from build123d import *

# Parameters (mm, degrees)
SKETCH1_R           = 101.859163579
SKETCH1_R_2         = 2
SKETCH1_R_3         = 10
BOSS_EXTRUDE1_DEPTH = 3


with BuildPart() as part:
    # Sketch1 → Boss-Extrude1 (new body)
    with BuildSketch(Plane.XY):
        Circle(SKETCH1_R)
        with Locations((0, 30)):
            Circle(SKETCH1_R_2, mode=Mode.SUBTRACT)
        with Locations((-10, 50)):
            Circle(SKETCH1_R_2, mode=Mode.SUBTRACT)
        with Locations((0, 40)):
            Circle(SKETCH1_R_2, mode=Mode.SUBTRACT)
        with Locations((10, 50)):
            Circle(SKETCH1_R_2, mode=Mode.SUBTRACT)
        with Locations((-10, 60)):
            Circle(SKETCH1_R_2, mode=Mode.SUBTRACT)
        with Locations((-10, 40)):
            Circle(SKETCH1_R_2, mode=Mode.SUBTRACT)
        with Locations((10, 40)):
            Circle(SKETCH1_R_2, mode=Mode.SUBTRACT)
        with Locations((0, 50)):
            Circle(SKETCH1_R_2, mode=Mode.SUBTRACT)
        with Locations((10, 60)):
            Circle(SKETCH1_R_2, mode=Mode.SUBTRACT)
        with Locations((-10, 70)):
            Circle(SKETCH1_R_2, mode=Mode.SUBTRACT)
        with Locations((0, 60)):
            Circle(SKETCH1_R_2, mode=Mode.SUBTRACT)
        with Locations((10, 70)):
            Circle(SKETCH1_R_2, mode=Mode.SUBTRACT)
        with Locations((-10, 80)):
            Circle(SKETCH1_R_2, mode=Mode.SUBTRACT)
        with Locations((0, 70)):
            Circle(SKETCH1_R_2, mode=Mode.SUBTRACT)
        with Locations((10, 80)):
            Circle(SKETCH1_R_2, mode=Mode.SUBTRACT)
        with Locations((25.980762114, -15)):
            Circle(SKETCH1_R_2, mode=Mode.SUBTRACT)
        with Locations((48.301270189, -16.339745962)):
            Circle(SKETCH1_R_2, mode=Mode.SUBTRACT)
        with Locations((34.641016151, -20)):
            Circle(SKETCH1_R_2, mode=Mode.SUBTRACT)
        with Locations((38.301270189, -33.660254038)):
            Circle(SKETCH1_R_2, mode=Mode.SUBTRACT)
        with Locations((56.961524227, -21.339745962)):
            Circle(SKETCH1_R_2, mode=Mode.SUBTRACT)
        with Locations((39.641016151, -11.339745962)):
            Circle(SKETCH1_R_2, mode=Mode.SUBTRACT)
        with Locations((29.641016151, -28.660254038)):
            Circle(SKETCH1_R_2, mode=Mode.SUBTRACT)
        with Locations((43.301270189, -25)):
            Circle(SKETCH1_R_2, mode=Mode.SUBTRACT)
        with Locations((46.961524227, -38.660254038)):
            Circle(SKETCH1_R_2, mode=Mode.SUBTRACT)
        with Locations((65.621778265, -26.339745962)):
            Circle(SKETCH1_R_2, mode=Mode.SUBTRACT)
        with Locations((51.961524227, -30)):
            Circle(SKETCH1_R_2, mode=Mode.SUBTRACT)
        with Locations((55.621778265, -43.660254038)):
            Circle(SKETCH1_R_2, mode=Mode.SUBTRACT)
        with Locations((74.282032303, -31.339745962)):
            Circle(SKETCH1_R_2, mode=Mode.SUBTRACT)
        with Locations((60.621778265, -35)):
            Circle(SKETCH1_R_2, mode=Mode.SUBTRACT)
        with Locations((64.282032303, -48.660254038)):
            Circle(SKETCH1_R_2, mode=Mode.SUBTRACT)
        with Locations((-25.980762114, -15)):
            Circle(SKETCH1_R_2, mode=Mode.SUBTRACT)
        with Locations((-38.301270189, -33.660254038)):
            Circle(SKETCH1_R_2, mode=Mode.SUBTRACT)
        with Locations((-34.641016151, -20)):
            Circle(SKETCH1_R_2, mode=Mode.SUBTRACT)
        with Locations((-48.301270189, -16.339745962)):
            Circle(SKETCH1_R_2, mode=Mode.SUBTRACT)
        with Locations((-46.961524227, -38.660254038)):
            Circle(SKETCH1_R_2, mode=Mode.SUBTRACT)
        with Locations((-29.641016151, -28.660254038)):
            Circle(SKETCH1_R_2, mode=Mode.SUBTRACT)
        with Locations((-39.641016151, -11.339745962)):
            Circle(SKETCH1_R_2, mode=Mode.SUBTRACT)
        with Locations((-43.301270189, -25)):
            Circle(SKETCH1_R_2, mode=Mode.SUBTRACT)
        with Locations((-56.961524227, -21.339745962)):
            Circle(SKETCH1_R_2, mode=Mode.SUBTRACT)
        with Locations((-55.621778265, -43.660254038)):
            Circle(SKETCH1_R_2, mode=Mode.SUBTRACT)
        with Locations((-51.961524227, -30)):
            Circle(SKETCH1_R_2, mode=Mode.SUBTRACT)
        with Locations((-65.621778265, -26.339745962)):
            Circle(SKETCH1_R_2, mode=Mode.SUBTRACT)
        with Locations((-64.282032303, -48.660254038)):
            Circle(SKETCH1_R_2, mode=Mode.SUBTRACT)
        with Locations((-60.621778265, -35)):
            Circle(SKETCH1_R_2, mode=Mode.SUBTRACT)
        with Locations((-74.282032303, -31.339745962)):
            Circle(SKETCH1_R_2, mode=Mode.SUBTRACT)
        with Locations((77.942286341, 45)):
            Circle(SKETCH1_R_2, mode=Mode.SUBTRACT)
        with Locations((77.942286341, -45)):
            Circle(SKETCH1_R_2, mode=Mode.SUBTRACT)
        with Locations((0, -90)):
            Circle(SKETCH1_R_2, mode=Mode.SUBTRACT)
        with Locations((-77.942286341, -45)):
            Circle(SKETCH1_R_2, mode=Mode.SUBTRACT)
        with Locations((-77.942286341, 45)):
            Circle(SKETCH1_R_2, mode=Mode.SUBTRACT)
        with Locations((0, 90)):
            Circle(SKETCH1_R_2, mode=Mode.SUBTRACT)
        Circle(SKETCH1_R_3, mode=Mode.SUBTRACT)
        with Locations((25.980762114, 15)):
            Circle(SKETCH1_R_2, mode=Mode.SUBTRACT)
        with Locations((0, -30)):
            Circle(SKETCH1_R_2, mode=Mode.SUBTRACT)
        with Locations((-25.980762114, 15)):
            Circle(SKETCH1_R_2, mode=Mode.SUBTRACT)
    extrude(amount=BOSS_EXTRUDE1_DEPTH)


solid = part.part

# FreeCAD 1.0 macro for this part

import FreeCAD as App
import Part
import Sketcher
from FreeCAD import Vector

doc = App.newDocument("Part")
params = doc.addObject("Spreadsheet::Sheet", "Params")
for row, (alias, value) in enumerate([
    ("sketch1_diameter", "4 mm"),
    ("sketch1_diameter2", "20 mm"),
    ("pad1_length", "3 mm"),
], start=1):
    params.set(f"A{row}", alias)
    params.set(f"B{row}", "=" + value)
    params.setAlias(f"B{row}", alias)

body = doc.addObject("PartDesign::Body", "Body")

sketch1 = body.newObject("Sketcher::SketchObject", "Sketch")
sketch1.AttachmentSupport = (doc.getObject("XY_Plane"), [""])
sketch1.MapMode = "FlatFace"
sketch1.addGeometry([
    Part.Circle(Vector(0, 0, 0), Vector(0, 0, 1), 101.9),
    Part.Circle(Vector(-64.3, -48.7, 0), Vector(0, 0, 1), 2),
    Part.Circle(Vector(-77.9, -45, 0), Vector(0, 0, 1), 2),
    Part.Circle(Vector(-60.6, -35, 0), Vector(0, 0, 1), 2),
    Part.Circle(Vector(-74.3, -31.3, 0), Vector(0, 0, 1), 2),
    Part.Circle(Vector(-65.6, -26.3, 0), Vector(0, 0, 1), 2),
    Part.Circle(Vector(-55.6, -43.7, 0), Vector(0, 0, 1), 2),
    Part.Circle(Vector(-47, -38.7, 0), Vector(0, 0, 1), 2),
    Part.Circle(Vector(-52, -30, 0), Vector(0, 0, 1), 2),
    Part.Circle(Vector(-43.3, -25, 0), Vector(0, 0, 1), 2),
    Part.Circle(Vector(-57, -21.3, 0), Vector(0, 0, 1), 2),
    Part.Circle(Vector(-48.3, -16.3, 0), Vector(0, 0, 1), 2),
    Part.Circle(Vector(-38.3, -33.7, 0), Vector(0, 0, 1), 2),
    Part.Circle(Vector(-29.6, -28.7, 0), Vector(0, 0, 1), 2),
    Part.Circle(Vector(-34.6, -20, 0), Vector(0, 0, 1), 2),
    Part.Circle(Vector(-26, -15, 0), Vector(0, 0, 1), 2),
    Part.Circle(Vector(-39.6, -11.3, 0), Vector(0, 0, 1), 2),
    Part.Circle(Vector(0, -90, 0), Vector(0, 0, 1), 2),
    Part.Circle(Vector(64.3, -48.7, 0), Vector(0, 0, 1), 2),
    Part.Circle(Vector(0, -30, 0), Vector(0, 0, 1), 2),
    Part.Circle(Vector(29.6, -28.7, 0), Vector(0, 0, 1), 2),
    Part.Circle(Vector(38.3, -33.7, 0), Vector(0, 0, 1), 2),
    Part.Circle(Vector(26, -15, 0), Vector(0, 0, 1), 2),
    Part.Circle(Vector(34.6, -20, 0), Vector(0, 0, 1), 2),
    Part.Circle(Vector(39.6, -11.3, 0), Vector(0, 0, 1), 2),
    Part.Circle(Vector(47, -38.7, 0), Vector(0, 0, 1), 2),
    Part.Circle(Vector(55.6, -43.7, 0), Vector(0, 0, 1), 2),
    Part.Circle(Vector(43.3, -25, 0), Vector(0, 0, 1), 2),
    Part.Circle(Vector(52, -30, 0), Vector(0, 0, 1), 2),
    Part.Circle(Vector(60.6, -35, 0), Vector(0, 0, 1), 2),
    Part.Circle(Vector(77.9, -45, 0), Vector(0, 0, 1), 2),
    Part.Circle(Vector(65.6, -26.3, 0), Vector(0, 0, 1), 2),
    Part.Circle(Vector(74.3, -31.3, 0), Vector(0, 0, 1), 2),
    Part.Circle(Vector(48.3, -16.3, 0), Vector(0, 0, 1), 2),
    Part.Circle(Vector(57, -21.3, 0), Vector(0, 0, 1), 2),
    Part.Circle(Vector(-77.9, 45, 0), Vector(0, 0, 1), 2),
    Part.Circle(Vector(-26, 15, 0), Vector(0, 0, 1), 2),
    Part.Circle(Vector(-10, 40, 0), Vector(0, 0, 1), 2),
    Part.Circle(Vector(-10, 50, 0), Vector(0, 0, 1), 2),
    Part.Circle(Vector(-10, 60, 0), Vector(0, 0, 1), 2),
    Part.Circle(Vector(-10, 70, 0), Vector(0, 0, 1), 2),
    Part.Circle(Vector(-10, 80, 0), Vector(0, 0, 1), 2),
    Part.Circle(Vector(0, 0, 0), Vector(0, 0, 1), 10),
    Part.Circle(Vector(26, 15, 0), Vector(0, 0, 1), 2),
    Part.Circle(Vector(0, 30, 0), Vector(0, 0, 1), 2),
    Part.Circle(Vector(0, 40, 0), Vector(0, 0, 1), 2),
    Part.Circle(Vector(10, 40, 0), Vector(0, 0, 1), 2),
    Part.Circle(Vector(77.9, 45, 0), Vector(0, 0, 1), 2),
    Part.Circle(Vector(0, 50, 0), Vector(0, 0, 1), 2),
    Part.Circle(Vector(10, 50, 0), Vector(0, 0, 1), 2),
    Part.Circle(Vector(0, 60, 0), Vector(0, 0, 1), 2),
    Part.Circle(Vector(10, 60, 0), Vector(0, 0, 1), 2),
    Part.Circle(Vector(0, 70, 0), Vector(0, 0, 1), 2),
    Part.Circle(Vector(10, 70, 0), Vector(0, 0, 1), 2),
    Part.Circle(Vector(10, 80, 0), Vector(0, 0, 1), 2),
    Part.Circle(Vector(0, 90, 0), Vector(0, 0, 1), 2),
], False)
sketch1.addConstraint([
    Sketcher.Constraint("Coincident", 0, 3, -1, 1),
    Sketcher.Constraint("Coincident", 42, 3, -1, 1),
    Sketcher.Constraint("Equal", 1, 2),
    Sketcher.Constraint("Equal", 2, 3),
    Sketcher.Constraint("Equal", 3, 4),
    Sketcher.Constraint("Equal", 4, 5),
    Sketcher.Constraint("Equal", 5, 6),
    Sketcher.Constraint("Equal", 6, 7),
    Sketcher.Constraint("Equal", 7, 8),
    Sketcher.Constraint("Equal", 8, 9),
    Sketcher.Constraint("Equal", 9, 10),
    Sketcher.Constraint("Equal", 10, 11),
    Sketcher.Constraint("Equal", 11, 12),
    Sketcher.Constraint("Equal", 12, 13),
    Sketcher.Constraint("Equal", 13, 14),
    Sketcher.Constraint("Equal", 14, 15),
    Sketcher.Constraint("Equal", 15, 16),
    Sketcher.Constraint("Equal", 16, 17),
    Sketcher.Constraint("Equal", 17, 18),
    Sketcher.Constraint("Equal", 18, 19),
    Sketcher.Constraint("Equal", 19, 20),
    Sketcher.Constraint("Equal", 20, 21),
    Sketcher.Constraint("Equal", 21, 22),
    Sketcher.Constraint("Equal", 22, 23),
    Sketcher.Constraint("Equal", 23, 24),
    Sketcher.Constraint("Equal", 24, 25),
    Sketcher.Constraint("Equal", 25, 26),
    Sketcher.Constraint("Equal", 26, 27),
    Sketcher.Constraint("Equal", 27, 28),
    Sketcher.Constraint("Equal", 28, 29),
    Sketcher.Constraint("Equal", 29, 30),
    Sketcher.Constraint("Equal", 30, 31),
    Sketcher.Constraint("Equal", 31, 32),
    Sketcher.Constraint("Equal", 32, 33),
    Sketcher.Constraint("Equal", 33, 34),
    Sketcher.Constraint("Equal", 34, 35),
    Sketcher.Constraint("Equal", 35, 36),
    Sketcher.Constraint("Equal", 36, 37),
    Sketcher.Constraint("Equal", 37, 38),
    Sketcher.Constraint("Equal", 38, 39),
    Sketcher.Constraint("Equal", 39, 40),
    Sketcher.Constraint("Equal", 40, 41),
    Sketcher.Constraint("Equal", 41, 43),
    Sketcher.Constraint("Equal", 43, 44),
    Sketcher.Constraint("Equal", 44, 45),
    Sketcher.Constraint("Equal", 45, 46),
    Sketcher.Constraint("Equal", 46, 47),
    Sketcher.Constraint("Equal", 47, 48),
    Sketcher.Constraint("Equal", 48, 49),
    Sketcher.Constraint("Equal", 49, 50),
    Sketcher.Constraint("Equal", 50, 51),
    Sketcher.Constraint("Equal", 51, 52),
    Sketcher.Constraint("Equal", 52, 53),
    Sketcher.Constraint("Equal", 53, 54),
    Sketcher.Constraint("Equal", 54, 55),
    Sketcher.Constraint("Symmetric", 30, 3, 35, 3, -1, 1),
    Sketcher.Constraint("Symmetric", 22, 3, 36, 3, -1, 1),
    Sketcher.Constraint("Symmetric", 15, 3, 43, 3, -1, 1),
    Sketcher.Constraint("Symmetric", 19, 3, 44, 3, -1, 1),
    Sketcher.Constraint("Symmetric", 2, 3, 47, 3, -1, 1),
    Sketcher.Constraint("Symmetric", 17, 3, 55, 3, -1, 1),
    Sketcher.Constraint("Symmetric", 1, 3, 18, 3, -2),
    Sketcher.Constraint("Symmetric", 13, 3, 20, 3, -2),
    Sketcher.Constraint("Symmetric", 12, 3, 21, 3, -2),
    Sketcher.Constraint("Symmetric", 15, 3, 22, 3, -2),
    Sketcher.Constraint("Symmetric", 14, 3, 23, 3, -2),
    Sketcher.Constraint("Symmetric", 16, 3, 24, 3, -2),
    Sketcher.Constraint("Symmetric", 7, 3, 25, 3, -2),
    Sketcher.Constraint("Symmetric", 6, 3, 26, 3, -2),
    Sketcher.Constraint("Symmetric", 9, 3, 27, 3, -2),
    Sketcher.Constraint("Symmetric", 8, 3, 28, 3, -2),
    Sketcher.Constraint("Symmetric", 3, 3, 29, 3, -2),
    Sketcher.Constraint("Symmetric", 2, 3, 30, 3, -2),
    Sketcher.Constraint("Symmetric", 5, 3, 31, 3, -2),
    Sketcher.Constraint("Symmetric", 4, 3, 32, 3, -2),
    Sketcher.Constraint("Symmetric", 11, 3, 33, 3, -2),
    Sketcher.Constraint("Symmetric", 10, 3, 34, 3, -2),
    Sketcher.Constraint("Symmetric", 37, 3, 46, 3, -2),
    Sketcher.Constraint("Symmetric", 38, 3, 49, 3, -2),
    Sketcher.Constraint("Symmetric", 39, 3, 51, 3, -2),
    Sketcher.Constraint("Symmetric", 40, 3, 53, 3, -2),
    Sketcher.Constraint("Symmetric", 41, 3, 54, 3, -2),
    Sketcher.Constraint("PointOnObject", 17, 3, -2),
    Sketcher.Constraint("PointOnObject", 19, 3, -2),
    Sketcher.Constraint("PointOnObject", 45, 3, -2),
    Sketcher.Constraint("PointOnObject", 48, 3, -2),
    Sketcher.Constraint("PointOnObject", 50, 3, -2),
    Sketcher.Constraint("PointOnObject", 52, 3, -2),
    Sketcher.Constraint("Horizontal", 8, 3, 19, 3),
    Sketcher.Constraint("Horizontal", 37, 3, 45, 3),
    Sketcher.Constraint("Horizontal", 38, 3, 48, 3),
    Sketcher.Constraint("Horizontal", 39, 3, 50, 3),
    Sketcher.Constraint("Horizontal", 40, 3, 52, 3),
    Sketcher.Constraint("Vertical", 37, 3, 38, 3),
    Sketcher.Constraint("Vertical", 38, 3, 39, 3),
    Sketcher.Constraint("Vertical", 39, 3, 40, 3),
    Sketcher.Constraint("Vertical", 40, 3, 41, 3),
    Sketcher.Constraint("Diameter", 1, 4.0),
    Sketcher.Constraint("Diameter", 42, 20.0),
    Sketcher.Constraint("DistanceY", 2, 3, -1, 1, 45.0),
    Sketcher.Constraint("DistanceY", 3, 3, -1, 1, 35.0),
    Sketcher.Constraint("DistanceY", 8, 3, -1, 1, 30.0),
    Sketcher.Constraint("DistanceY", 9, 3, -1, 1, 25.0),
    Sketcher.Constraint("DistanceY", 14, 3, -1, 1, 20.0),
    Sketcher.Constraint("DistanceY", 15, 3, -1, 1, 15.0),
    Sketcher.Constraint("DistanceY", 17, 3, -1, 1, 90.0),
    Sketcher.Constraint("DistanceX", 37, 3, -1, 1, 10.0),
    Sketcher.Constraint("DistanceY", -1, 1, 37, 3, 40.0),
    Sketcher.Constraint("DistanceY", -1, 1, 38, 3, 50.0),
    Sketcher.Constraint("DistanceY", -1, 1, 39, 3, 60.0),
    Sketcher.Constraint("DistanceY", -1, 1, 40, 3, 70.0),
    Sketcher.Constraint("DistanceY", -1, 1, 41, 3, 80.0),
    Sketcher.Constraint("DistanceX", 4, 3, 1, 3, 10.0),
    Sketcher.Constraint("DistanceY", 4, 3, 5, 3, 5.0),
    Sketcher.Constraint("DistanceX", 5, 3, 3, 3, 5.0),
    Sketcher.Constraint("DistanceY", 1, 3, 6, 3, 5.0),
    Sketcher.Constraint("DistanceX", 3, 3, 6, 3, 5.0),
    Sketcher.Constraint("DistanceY", 6, 3, 7, 3, 5.0),
    Sketcher.Constraint("DistanceX", 8, 3, 7, 3, 5.0),
    Sketcher.Constraint("DistanceX", 10, 3, 8, 3, 5.0),
    Sketcher.Constraint("DistanceY", 5, 3, 10, 3, 5.0),
    Sketcher.Constraint("DistanceY", 10, 3, 11, 3, 5.0),
    Sketcher.Constraint("DistanceX", 11, 3, 9, 3, 5.0),
    Sketcher.Constraint("DistanceY", 7, 3, 12, 3, 5.0),
    Sketcher.Constraint("DistanceX", 9, 3, 12, 3, 5.0),
    Sketcher.Constraint("DistanceY", 12, 3, 13, 3, 5.0),
    Sketcher.Constraint("DistanceX", 14, 3, 13, 3, 5.0),
    Sketcher.Constraint("DistanceY", 11, 3, 16, 3, 5.0),
    Sketcher.Constraint("DistanceX", 16, 3, 14, 3, 5.0),
    Sketcher.Constraint("Diameter", 0, 203.718327),
    Sketcher.Constraint("DistanceX", 3, 3, -1, 1, 60.621778),
    Sketcher.Constraint("DistanceX", 9, 3, -1, 1, 43.30127),
    Sketcher.Constraint("DistanceX", 2, 3, 3, 3, 17.320508),
    Sketcher.Constraint("DistanceY", 1, 3, 4, 3, 17.320508),
    Sketcher.Constraint("DistanceX", 1, 3, 7, 3, 17.320508),
    Sketcher.Constraint("DistanceX", 7, 3, 13, 3, 17.320508),
    Sketcher.Constraint("DistanceX", 9, 3, 15, 3, 17.320508),
    Sketcher.Constraint("DistanceX", 13, 3, 18, 3, 93.923048),
    Sketcher.Constraint("DistanceY", 1, 3, -1, 1, 48.660254),
])
sketch1.setExpression("Constraints[97]", "Params.sketch1_diameter")
sketch1.setExpression("Constraints[98]", "Params.sketch1_diameter2")
pad1 = body.newObject("PartDesign::Pad", "Pad")
pad1.Profile = sketch1
pad1.setExpression("Length", "Params.pad1_length")

doc.recompute()
